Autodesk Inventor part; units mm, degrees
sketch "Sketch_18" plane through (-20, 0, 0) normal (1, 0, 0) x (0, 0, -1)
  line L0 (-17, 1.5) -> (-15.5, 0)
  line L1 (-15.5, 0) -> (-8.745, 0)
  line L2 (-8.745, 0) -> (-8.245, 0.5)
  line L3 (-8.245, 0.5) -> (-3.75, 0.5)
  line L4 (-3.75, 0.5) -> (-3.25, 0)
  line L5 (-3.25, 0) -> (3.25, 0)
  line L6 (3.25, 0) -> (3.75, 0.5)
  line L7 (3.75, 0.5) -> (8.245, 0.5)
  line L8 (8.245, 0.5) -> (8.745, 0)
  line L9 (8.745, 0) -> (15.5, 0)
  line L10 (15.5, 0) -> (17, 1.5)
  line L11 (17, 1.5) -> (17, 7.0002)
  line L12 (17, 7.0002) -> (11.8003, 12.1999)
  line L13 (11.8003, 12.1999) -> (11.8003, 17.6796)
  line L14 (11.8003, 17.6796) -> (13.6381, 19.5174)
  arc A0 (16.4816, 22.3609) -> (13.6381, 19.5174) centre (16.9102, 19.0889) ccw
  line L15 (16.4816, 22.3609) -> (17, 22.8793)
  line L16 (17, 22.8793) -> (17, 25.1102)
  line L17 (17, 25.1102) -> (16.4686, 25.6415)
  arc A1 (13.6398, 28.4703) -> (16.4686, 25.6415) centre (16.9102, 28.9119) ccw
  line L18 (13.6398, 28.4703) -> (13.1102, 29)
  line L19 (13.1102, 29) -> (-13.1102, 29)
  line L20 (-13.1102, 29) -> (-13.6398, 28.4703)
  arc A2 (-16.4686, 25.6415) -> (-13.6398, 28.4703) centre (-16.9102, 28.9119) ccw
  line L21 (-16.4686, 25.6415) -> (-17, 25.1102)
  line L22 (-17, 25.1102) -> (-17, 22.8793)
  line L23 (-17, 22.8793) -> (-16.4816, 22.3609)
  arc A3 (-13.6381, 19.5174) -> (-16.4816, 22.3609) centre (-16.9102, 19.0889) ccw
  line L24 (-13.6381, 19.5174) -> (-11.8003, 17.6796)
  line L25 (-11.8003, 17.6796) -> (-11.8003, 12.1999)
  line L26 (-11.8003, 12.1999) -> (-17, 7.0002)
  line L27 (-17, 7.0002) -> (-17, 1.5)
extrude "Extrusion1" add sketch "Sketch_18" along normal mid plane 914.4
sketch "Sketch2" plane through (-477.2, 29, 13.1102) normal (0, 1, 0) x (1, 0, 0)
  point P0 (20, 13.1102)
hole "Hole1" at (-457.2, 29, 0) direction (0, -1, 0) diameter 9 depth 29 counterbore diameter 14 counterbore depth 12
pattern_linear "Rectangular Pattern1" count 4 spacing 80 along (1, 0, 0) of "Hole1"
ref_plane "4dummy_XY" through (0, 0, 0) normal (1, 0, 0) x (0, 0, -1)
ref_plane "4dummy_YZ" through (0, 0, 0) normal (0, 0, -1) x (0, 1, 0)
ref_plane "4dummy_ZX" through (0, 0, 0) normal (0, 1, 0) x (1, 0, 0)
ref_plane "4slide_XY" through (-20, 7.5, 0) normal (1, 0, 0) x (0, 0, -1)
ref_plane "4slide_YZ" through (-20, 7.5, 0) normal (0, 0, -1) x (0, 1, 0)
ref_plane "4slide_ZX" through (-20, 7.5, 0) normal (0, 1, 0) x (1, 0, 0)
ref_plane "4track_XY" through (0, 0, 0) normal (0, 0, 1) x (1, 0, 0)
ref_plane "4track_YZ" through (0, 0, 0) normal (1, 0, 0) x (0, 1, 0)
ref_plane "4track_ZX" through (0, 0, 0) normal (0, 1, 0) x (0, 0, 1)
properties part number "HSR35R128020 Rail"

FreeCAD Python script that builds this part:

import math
import FreeCAD as App
import Part
import Sketcher
from FreeCAD import Vector

doc = App.newDocument("Part")
body = doc.addObject("PartDesign::Body", "Body")

sketch1 = doc.addObject("Sketcher::SketchObject", "Sketch")
body.addObject(sketch1)
sketch1.AttachmentSupport = (doc.YZ_Plane, [""])
sketch1.MapMode = "FlatFace"
sketch1.AttachmentOffset = App.Placement(Vector(0, 0, -20), App.Rotation())
sketch1.addGeometry([
    Part.LineSegment(Vector(7.0002, 17, 0), Vector(1.5, 17, 0)),
    Part.LineSegment(Vector(1.5, 17, 0), Vector(0, 15.5, 0)),
    Part.LineSegment(Vector(0, 15.5, 0), Vector(0, 8.745, 0)),
    Part.LineSegment(Vector(0, 8.745, 0), Vector(0.5, 8.245, 0)),
    Part.LineSegment(Vector(0.5, 8.245, 0), Vector(0.5, 3.75, 0)),
    Part.LineSegment(Vector(0.5, 3.75, 0), Vector(0, 3.25, 0)),
    Part.LineSegment(Vector(0, 3.25, 0), Vector(0, -3.25, 0)),
    Part.LineSegment(Vector(0, -3.25, 0), Vector(0.5, -3.75, 0)),
    Part.LineSegment(Vector(0.5, -3.75, 0), Vector(0.5, -8.245, 0)),
    Part.LineSegment(Vector(0.5, -8.245, 0), Vector(0, -8.745, 0)),
    Part.LineSegment(Vector(0, -8.745, 0), Vector(0, -15.5, 0)),
    Part.LineSegment(Vector(0, -15.5, 0), Vector(1.5, -17, 0)),
    Part.LineSegment(Vector(1.5, -17, 0), Vector(7.0002, -17, 0)),
    Part.LineSegment(Vector(7.0002, -17, 0), Vector(12.1999, -11.8003, 0)),
    Part.LineSegment(Vector(12.1999, -11.8003, 0), Vector(17.6796, -11.8003, 0)),
    Part.LineSegment(Vector(17.6796, -11.8003, 0), Vector(19.5174, -13.6381, 0)),
    Part.ArcOfCircle(Part.Circle(Vector(19.0889, -16.9102, 0), Vector(0, 0, 1), 3.299952), math.radians(7.462698), math.radians(82.539249)),
    Part.LineSegment(Vector(22.3609, -16.4816, 0), Vector(22.8793, -17, 0)),
    Part.LineSegment(Vector(22.8793, -17, 0), Vector(25.1102, -17, 0)),
    Part.LineSegment(Vector(25.1102, -17, 0), Vector(25.6415, -16.4686, 0)),
    Part.ArcOfCircle(Part.Circle(Vector(28.9119, -16.9102, 0), Vector(0, 0, 1), 3.30008), math.radians(97.6901), math.radians(172.3099)),
    Part.LineSegment(Vector(28.4703, -13.6398, 0), Vector(29, -13.1102, 0)),
    Part.LineSegment(Vector(29, -13.1102, 0), Vector(29, 13.1102, 0)),
    Part.LineSegment(Vector(29, 13.1102, 0), Vector(28.4703, 13.6398, 0)),
    Part.ArcOfCircle(Part.Circle(Vector(28.9119, 16.9102, 0), Vector(0, 0, 1), 3.30008), math.radians(-172.3099), math.radians(-97.6901)),
    Part.LineSegment(Vector(25.6415, 16.4686, 0), Vector(25.1102, 17, 0)),
    Part.LineSegment(Vector(25.1102, 17, 0), Vector(22.8793, 17, 0)),
    Part.LineSegment(Vector(22.8793, 17, 0), Vector(22.3609, 16.4816, 0)),
    Part.ArcOfCircle(Part.Circle(Vector(19.0889, 16.9102, 0), Vector(0, 0, 1), 3.300038), math.radians(-82.539249), math.radians(-7.462698)),
    Part.LineSegment(Vector(19.5174, 13.6381, 0), Vector(17.6796, 11.8003, 0)),
    Part.LineSegment(Vector(17.6796, 11.8003, 0), Vector(12.1999, 11.8003, 0)),
    Part.LineSegment(Vector(12.1999, 11.8003, 0), Vector(7.0002, 17, 0)),
], False)
sketch1.addConstraint([
    Sketcher.Constraint("Coincident", 0, 2, 1, 1),
    Sketcher.Constraint("Coincident", 1, 2, 2, 1),
    Sketcher.Constraint("Coincident", 2, 2, 3, 1),
    Sketcher.Constraint("Coincident", 3, 2, 4, 1),
    Sketcher.Constraint("Coincident", 4, 2, 5, 1),
    Sketcher.Constraint("Coincident", 5, 2, 6, 1),
    Sketcher.Constraint("Coincident", 6, 2, 7, 1),
    Sketcher.Constraint("Coincident", 7, 2, 8, 1),
    Sketcher.Constraint("Coincident", 8, 2, 9, 1),
    Sketcher.Constraint("Coincident", 9, 2, 10, 1),
    Sketcher.Constraint("Coincident", 10, 2, 11, 1),
    Sketcher.Constraint("Coincident", 11, 2, 12, 1),
    Sketcher.Constraint("Coincident", 12, 2, 13, 1),
    Sketcher.Constraint("Coincident", 13, 2, 14, 1),
    Sketcher.Constraint("Coincident", 14, 2, 15, 1),
    Sketcher.Constraint("Coincident", 15, 2, 16, 2),
    Sketcher.Constraint("Coincident", 16, 1, 17, 1),
    Sketcher.Constraint("Coincident", 17, 2, 18, 1),
    Sketcher.Constraint("Coincident", 18, 2, 19, 1),
    Sketcher.Constraint("Coincident", 19, 2, 20, 2),
    Sketcher.Constraint("Coincident", 20, 1, 21, 1),
    Sketcher.Constraint("Coincident", 21, 2, 22, 1),
    Sketcher.Constraint("Coincident", 22, 2, 23, 1),
    Sketcher.Constraint("Coincident", 23, 2, 24, 2),
    Sketcher.Constraint("Coincident", 24, 1, 25, 1),
    Sketcher.Constraint("Coincident", 25, 2, 26, 1),
    Sketcher.Constraint("Coincident", 26, 2, 27, 1),
    Sketcher.Constraint("Coincident", 27, 2, 28, 2),
    Sketcher.Constraint("Coincident", 28, 1, 29, 1),
    Sketcher.Constraint("Coincident", 29, 2, 30, 1),
    Sketcher.Constraint("Coincident", 30, 2, 31, 1),
    Sketcher.Constraint("Coincident", 31, 2, 0, 1),
    Sketcher.Constraint("Horizontal", 0),
    Sketcher.Constraint("Vertical", 2),
    Sketcher.Constraint("Vertical", 4),
    Sketcher.Constraint("Vertical", 6),
    Sketcher.Constraint("Vertical", 8),
    Sketcher.Constraint("Vertical", 10),
    Sketcher.Constraint("Horizontal", 12),
    Sketcher.Constraint("Horizontal", 14),
    Sketcher.Constraint("Horizontal", 18),
    Sketcher.Constraint("Vertical", 22),
    Sketcher.Constraint("Horizontal", 26),
    Sketcher.Constraint("Horizontal", 30),
    Sketcher.Constraint("PointOnObject", 1, 2, -2),
    Sketcher.Constraint("PointOnObject", 5, 2, -2),
    Sketcher.Constraint("PointOnObject", 9, 2, -2),
    Sketcher.Constraint("Radius", 16, 3.3),
    Sketcher.Constraint("Radius", 20, 3.3),
    Sketcher.Constraint("Radius", 24, 3.3),
    Sketcher.Constraint("Radius", 28, 3.3),
    Sketcher.Constraint("DistanceY", 6, 2, 6, 1, 6.5),
    Sketcher.Constraint("DistanceY", -1, 1, 0, 2, 17.0),
    Sketcher.Constraint("DistanceY", 11, 2, -1, 1, 17.0),
    Sketcher.Constraint("DistanceY", 17, 2, -1, 1, 17.0),
    Sketcher.Constraint("DistanceX", -1, 1, 21, 2, 29.0),
    Sketcher.Constraint("DistanceY", -1, 1, 25, 2, 17.0),
    Sketcher.Constraint("DistanceX", 3, 2, 0, 2, 1.0),
    Sketcher.Constraint("DistanceY", 6, 2, 4, 2, 7.0),
    Sketcher.Constraint("DistanceY", 7, 2, 5, 2, 7.0),
    Sketcher.Constraint("DistanceX", 8, 2, 11, 2, 1.0),
    Sketcher.Constraint("DistanceX", -1, 1, 0, 2, 1.5),
    Sketcher.Constraint("DistanceY", -1, 1, 1, 2, 15.5),
    Sketcher.Constraint("DistanceX", -1, 1, 7, 2, 0.5),
    Sketcher.Constraint("DistanceY", 10, 2, -1, 1, 15.5),
    Sketcher.Constraint("DistanceX", -1, 1, 13, 2, 12.2),
    Sketcher.Constraint("DistanceX", -1, 1, 30, 2, 12.2),
    Sketcher.Constraint("DistanceY", 3, 2, 2, 2, 0.5),
    Sketcher.Constraint("DistanceY", 9, 2, 8, 2, 0.5),
    Sketcher.Constraint("DistanceY", 20, 3, 21, 2, 3.8),
    Sketcher.Constraint("DistanceY", 22, 2, 24, 3, 3.8),
    Sketcher.Constraint("DistanceY", 22, 2, 28, 3, 3.8),
    Sketcher.Constraint("DistanceX", 18, 1, 18, 2, 2.231),
    Sketcher.Constraint("DistanceX", 26, 2, 26, 1, 2.231),
    Sketcher.Constraint("DistanceY", 2, 2, 2, 1, 6.755),
    Sketcher.Constraint("DistanceY", 4, 2, 4, 1, 4.495),
    Sketcher.Constraint("DistanceY", 8, 2, 8, 1, 4.495),
    Sketcher.Constraint("DistanceY", 16, 3, 13, 2, 5.11),
    Sketcher.Constraint("DistanceY", 20, 3, 14, 2, 5.11),
    Sketcher.Constraint("DistanceX", 18, 2, 20, 1, 3.36),
    Sketcher.Constraint("DistanceY", 20, 1, 22, 2, 26.75),
    Sketcher.Constraint("DistanceY", 21, 2, 23, 2, 26.75),
    Sketcher.Constraint("DistanceX", 25, 2, 23, 2, 3.36),
    Sketcher.Constraint("DistanceY", 29, 2, 28, 3, 5.11),
    Sketcher.Constraint("Distance", 15, 2.599),
    Sketcher.Constraint("Distance", 21, 0.749),
    Sketcher.Constraint("Distance", 23, 0.749),
    Sketcher.Constraint("Distance", 29, 2.599),
    Sketcher.Constraint("DistanceX", 0, 2, 0, 1, 5.5002),
    Sketcher.Constraint("DistanceX", 12, 1, 12, 2, 5.5002),
    Sketcher.Constraint("DistanceX", 14, 1, 14, 2, 5.4797),
    Sketcher.Constraint("DistanceX", 30, 2, 30, 1, 5.4797),
    Sketcher.Constraint("DistanceY", 22, 1, 22, 2, 26.2204),
    Sketcher.Constraint("DistanceX", -1, 1, 16, 3, 19.089),
    Sketcher.Constraint("DistanceX", -1, 1, 28, 3, 19.089),
    Sketcher.Constraint("DistanceY", 15, 2, -1, 1, 13.638),
    Sketcher.Constraint("DistanceX", -1, 1, 16, 1, 22.361),
    Sketcher.Constraint("DistanceX", -1, 1, 27, 2, 22.361),
    Sketcher.Constraint("DistanceY", 16, 1, 19, 2, 0.013),
    Sketcher.Constraint("DistanceY", 24, 1, 27, 2, 0.013),
])
pad1 = doc.addObject("PartDesign::Pad", "Pad")
body.addObject(pad1)
pad1.Profile = sketch1
pad1.Length = 914.4
pad1.Midplane = True

sketch2 = doc.addObject("Sketcher::SketchObject", "Sketch001")
body.addObject(sketch2)
sketch2.AttachmentSupport = (doc.XZ_Plane, [""])
sketch2.MapMode = "FlatFace"
sketch2.AttachmentOffset = App.Placement(Vector(0, 0, -29), App.Rotation())
sketch2.addGeometry(Part.Circle(Vector(-457.2, 0, 0), Vector(0, 0, 1), 4.5), False)
sketch2.addConstraint([
    Sketcher.Constraint("PointOnObject", 0, 3, -1),
    Sketcher.Constraint("Diameter", 0, 9.0),
    Sketcher.Constraint("DistanceX", 0, 3, -1, 1, 457.2),
])
doc.recompute()
hole = doc.addObject("PartDesign::Hole", "Hole")
body.addObject(hole)
hole.Profile = sketch2
hole.ThreadType = "None"
hole.Diameter = 9
hole.DepthType = "Dimension"
hole.Depth = 29
hole.DrillPoint = "Flat"
hole.HoleCutType = "Counterbore"
hole.HoleCutDiameter = 14
hole.HoleCutDepth = 12
hole.Reversed = True
doc.recompute()

linearpattern = doc.addObject("PartDesign::LinearPattern", "LinearPattern")
body.addObject(linearpattern)
linearpattern.Originals = [hole]
linearpattern.Direction = (doc.X_Axis, [""])
linearpattern.Mode = "offset"
linearpattern.Offset = 80
linearpattern.Occurrences = 4
body.Tip = linearpattern

doc.recompute()
